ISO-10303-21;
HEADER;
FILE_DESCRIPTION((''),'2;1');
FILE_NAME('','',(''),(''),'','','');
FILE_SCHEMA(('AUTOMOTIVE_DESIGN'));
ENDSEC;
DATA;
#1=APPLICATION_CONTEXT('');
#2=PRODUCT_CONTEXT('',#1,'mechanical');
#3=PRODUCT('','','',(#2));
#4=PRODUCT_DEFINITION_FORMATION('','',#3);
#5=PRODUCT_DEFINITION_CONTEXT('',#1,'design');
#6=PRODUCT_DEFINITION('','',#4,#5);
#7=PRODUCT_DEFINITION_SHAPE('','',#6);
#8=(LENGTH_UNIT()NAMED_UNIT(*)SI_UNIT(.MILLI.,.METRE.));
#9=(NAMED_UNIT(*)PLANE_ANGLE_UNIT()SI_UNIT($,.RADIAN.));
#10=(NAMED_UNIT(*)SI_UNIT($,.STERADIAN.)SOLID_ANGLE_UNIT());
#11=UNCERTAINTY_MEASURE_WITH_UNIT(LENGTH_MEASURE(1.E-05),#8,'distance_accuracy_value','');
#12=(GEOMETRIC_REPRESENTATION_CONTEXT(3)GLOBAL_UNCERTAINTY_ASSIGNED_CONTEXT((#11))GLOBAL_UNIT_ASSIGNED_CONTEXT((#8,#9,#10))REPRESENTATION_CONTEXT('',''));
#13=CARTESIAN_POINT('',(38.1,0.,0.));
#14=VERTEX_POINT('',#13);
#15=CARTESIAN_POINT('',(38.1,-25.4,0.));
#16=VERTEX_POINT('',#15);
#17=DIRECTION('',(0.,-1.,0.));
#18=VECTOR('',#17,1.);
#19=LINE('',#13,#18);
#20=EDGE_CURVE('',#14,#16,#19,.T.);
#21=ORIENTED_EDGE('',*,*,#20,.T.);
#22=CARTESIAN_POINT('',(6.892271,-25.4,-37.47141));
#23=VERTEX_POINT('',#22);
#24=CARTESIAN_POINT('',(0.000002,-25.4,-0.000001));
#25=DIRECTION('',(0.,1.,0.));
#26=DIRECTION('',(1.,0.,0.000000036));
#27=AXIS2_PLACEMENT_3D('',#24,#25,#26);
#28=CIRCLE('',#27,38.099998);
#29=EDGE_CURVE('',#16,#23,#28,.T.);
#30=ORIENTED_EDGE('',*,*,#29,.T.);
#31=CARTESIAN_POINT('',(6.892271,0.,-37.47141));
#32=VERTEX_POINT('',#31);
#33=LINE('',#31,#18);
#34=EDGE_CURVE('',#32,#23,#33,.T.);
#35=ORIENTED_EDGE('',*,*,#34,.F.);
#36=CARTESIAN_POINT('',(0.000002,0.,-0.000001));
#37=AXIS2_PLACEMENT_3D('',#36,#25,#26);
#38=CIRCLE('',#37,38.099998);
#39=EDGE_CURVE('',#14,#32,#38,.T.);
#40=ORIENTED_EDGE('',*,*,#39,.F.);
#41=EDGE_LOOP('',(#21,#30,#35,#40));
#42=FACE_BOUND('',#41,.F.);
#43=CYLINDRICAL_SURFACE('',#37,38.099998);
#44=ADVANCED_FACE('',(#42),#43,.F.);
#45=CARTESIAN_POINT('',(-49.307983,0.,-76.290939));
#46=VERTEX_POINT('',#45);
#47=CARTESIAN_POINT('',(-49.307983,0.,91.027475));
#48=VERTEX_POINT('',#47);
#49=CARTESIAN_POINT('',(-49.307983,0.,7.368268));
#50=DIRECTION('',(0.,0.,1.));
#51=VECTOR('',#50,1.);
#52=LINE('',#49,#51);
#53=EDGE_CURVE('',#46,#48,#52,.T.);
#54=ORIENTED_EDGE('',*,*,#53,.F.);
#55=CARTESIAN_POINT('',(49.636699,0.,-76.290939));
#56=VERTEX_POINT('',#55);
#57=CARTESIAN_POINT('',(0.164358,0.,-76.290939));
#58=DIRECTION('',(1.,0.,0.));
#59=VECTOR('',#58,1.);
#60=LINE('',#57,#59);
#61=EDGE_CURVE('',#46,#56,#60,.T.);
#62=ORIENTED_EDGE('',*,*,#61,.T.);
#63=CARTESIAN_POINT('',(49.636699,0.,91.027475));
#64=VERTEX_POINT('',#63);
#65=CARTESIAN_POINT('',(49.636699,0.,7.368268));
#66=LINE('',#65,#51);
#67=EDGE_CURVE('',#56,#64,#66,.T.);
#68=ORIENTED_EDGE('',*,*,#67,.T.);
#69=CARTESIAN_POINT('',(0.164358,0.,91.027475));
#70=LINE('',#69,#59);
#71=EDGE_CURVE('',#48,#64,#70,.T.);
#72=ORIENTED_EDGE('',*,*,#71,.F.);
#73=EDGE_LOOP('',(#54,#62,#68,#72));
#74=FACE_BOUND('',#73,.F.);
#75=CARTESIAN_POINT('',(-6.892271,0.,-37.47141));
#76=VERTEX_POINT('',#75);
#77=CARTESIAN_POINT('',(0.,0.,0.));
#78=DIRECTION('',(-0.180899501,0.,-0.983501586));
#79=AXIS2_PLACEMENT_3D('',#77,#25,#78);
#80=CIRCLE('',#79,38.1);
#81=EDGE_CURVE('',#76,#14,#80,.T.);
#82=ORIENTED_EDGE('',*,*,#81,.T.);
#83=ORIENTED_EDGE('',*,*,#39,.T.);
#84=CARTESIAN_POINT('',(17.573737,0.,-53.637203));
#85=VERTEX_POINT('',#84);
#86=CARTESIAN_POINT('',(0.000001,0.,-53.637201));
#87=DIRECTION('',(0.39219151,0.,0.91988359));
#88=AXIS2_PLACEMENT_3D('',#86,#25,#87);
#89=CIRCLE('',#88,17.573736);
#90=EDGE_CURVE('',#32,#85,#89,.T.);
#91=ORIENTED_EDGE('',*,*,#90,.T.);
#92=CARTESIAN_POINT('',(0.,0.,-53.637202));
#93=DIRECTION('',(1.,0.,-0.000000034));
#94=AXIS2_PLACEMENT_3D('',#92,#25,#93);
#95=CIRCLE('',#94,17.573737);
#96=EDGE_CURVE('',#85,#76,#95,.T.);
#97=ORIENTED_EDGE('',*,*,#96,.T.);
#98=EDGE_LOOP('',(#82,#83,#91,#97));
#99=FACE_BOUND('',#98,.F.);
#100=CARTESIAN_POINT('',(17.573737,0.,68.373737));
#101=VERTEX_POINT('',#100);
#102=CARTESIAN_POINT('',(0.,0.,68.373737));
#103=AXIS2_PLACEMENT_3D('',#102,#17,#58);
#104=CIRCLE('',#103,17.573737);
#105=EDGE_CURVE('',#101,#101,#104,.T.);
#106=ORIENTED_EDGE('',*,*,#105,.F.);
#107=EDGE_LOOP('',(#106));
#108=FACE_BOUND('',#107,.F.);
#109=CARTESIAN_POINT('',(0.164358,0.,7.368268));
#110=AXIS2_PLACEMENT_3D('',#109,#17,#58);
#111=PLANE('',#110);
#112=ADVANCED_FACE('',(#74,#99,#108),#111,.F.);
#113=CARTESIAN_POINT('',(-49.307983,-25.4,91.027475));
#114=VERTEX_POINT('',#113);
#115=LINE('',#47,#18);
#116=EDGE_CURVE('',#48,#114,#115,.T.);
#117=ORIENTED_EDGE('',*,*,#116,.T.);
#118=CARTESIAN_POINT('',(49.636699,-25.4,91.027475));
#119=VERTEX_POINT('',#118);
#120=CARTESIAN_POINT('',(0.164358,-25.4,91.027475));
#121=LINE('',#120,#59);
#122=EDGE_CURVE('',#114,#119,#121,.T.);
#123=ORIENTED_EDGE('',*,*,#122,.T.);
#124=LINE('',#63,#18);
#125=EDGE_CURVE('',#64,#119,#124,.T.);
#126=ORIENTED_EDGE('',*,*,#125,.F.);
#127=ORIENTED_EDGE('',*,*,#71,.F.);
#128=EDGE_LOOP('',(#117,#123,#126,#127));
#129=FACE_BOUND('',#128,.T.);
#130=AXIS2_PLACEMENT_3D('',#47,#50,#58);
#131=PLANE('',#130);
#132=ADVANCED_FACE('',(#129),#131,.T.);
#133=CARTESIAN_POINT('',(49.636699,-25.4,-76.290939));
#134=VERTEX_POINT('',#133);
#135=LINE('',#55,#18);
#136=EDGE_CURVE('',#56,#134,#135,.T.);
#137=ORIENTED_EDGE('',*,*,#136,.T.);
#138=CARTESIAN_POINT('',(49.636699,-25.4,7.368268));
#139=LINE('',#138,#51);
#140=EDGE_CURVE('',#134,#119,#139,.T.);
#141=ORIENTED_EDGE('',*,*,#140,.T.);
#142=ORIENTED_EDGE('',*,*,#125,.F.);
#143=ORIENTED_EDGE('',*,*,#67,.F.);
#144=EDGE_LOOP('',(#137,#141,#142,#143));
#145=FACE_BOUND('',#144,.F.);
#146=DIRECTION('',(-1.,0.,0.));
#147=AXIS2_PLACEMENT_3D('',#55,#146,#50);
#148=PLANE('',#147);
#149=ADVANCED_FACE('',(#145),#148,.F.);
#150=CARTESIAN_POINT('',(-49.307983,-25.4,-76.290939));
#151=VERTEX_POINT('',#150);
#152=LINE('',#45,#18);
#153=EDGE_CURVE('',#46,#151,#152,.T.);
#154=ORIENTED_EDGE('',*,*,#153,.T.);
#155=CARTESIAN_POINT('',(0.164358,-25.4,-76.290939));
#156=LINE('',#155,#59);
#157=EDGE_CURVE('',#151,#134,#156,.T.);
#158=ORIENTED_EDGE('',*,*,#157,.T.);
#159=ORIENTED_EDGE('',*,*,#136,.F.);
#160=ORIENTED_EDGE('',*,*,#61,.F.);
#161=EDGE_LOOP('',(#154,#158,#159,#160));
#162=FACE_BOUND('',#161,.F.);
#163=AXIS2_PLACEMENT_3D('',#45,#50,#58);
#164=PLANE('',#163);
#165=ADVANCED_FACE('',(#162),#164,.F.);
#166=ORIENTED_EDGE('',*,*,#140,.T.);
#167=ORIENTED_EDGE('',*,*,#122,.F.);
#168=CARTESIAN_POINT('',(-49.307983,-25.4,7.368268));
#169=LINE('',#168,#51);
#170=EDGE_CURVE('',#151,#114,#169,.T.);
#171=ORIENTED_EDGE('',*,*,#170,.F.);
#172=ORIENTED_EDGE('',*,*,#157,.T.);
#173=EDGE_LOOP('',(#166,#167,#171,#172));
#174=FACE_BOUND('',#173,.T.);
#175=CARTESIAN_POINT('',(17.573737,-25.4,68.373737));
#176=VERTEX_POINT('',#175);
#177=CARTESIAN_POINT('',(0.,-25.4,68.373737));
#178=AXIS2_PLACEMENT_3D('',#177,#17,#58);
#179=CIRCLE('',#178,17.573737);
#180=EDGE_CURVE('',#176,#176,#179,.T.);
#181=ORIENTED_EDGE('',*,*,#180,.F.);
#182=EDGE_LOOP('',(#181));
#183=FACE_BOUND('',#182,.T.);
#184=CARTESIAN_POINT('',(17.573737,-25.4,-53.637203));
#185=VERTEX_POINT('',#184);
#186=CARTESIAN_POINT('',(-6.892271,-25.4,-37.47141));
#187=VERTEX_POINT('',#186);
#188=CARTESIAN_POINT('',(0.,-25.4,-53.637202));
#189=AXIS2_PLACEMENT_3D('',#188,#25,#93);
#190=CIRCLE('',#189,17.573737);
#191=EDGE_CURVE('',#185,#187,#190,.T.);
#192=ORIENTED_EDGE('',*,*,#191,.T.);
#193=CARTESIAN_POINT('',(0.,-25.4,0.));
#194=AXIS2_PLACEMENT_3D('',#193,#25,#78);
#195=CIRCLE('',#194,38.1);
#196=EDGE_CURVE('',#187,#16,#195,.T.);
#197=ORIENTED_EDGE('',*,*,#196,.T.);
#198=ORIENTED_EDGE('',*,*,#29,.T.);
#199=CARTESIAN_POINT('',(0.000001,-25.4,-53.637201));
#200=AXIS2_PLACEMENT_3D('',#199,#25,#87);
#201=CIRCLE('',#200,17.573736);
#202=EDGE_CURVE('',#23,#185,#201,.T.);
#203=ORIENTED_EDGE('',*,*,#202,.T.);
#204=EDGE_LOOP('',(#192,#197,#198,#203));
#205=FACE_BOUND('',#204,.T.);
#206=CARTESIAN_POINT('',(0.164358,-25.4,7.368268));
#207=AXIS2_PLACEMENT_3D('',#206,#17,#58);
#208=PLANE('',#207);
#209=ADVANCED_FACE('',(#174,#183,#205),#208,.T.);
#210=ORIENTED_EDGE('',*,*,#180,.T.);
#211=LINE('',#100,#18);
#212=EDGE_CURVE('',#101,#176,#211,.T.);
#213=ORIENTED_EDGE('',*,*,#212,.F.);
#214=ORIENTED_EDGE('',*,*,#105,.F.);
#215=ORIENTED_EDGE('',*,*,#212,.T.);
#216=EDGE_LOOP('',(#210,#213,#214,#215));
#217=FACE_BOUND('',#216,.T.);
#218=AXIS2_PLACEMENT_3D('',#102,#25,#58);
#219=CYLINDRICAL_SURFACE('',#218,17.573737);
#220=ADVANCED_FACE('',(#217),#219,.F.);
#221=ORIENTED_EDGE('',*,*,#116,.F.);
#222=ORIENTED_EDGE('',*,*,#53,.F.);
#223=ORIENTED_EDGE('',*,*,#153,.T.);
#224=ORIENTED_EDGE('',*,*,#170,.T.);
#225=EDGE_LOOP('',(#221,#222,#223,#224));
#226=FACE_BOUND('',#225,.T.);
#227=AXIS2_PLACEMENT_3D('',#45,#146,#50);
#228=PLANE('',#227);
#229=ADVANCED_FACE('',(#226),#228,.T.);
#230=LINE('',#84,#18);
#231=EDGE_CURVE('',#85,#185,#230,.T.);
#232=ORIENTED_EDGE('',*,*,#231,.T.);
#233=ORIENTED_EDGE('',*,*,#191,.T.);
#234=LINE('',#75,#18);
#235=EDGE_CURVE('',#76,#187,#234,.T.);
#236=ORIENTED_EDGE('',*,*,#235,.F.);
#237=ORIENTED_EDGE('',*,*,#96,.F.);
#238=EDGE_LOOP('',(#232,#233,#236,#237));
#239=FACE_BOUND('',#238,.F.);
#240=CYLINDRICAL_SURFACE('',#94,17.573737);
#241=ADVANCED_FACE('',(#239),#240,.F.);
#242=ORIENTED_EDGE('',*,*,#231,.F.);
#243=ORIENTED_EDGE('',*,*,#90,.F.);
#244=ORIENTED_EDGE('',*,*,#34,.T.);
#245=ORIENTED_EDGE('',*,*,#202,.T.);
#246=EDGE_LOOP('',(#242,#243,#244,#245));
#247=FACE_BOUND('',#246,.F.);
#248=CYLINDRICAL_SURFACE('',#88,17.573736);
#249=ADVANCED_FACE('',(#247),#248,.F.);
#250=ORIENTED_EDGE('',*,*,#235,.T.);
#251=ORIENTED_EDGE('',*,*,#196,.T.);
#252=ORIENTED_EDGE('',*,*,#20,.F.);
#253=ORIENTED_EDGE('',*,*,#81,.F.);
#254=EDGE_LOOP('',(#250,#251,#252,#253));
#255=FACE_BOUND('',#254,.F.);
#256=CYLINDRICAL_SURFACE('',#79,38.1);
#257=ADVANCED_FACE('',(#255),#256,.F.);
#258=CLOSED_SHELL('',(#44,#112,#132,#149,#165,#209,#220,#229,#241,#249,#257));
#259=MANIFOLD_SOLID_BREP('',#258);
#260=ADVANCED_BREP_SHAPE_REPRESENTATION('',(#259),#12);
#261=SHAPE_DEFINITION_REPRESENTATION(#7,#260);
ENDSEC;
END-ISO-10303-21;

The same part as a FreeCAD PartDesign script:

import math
import FreeCAD as App
import Part
import Sketcher
Q = App.Units.Quantity

doc = App.newDocument("Part")
body = doc.addObject("PartDesign::Body", "Body")

# Sketch on XZ plane
sketch1 = doc.addObject("Sketcher::SketchObject", "Sketch")
body.addObject(sketch1)
sketch1.AttachmentSupport = (doc.XZ_Plane, [""])
sketch1.MapMode = "FlatFace"
sketch1.addGeometry([
    Part.LineSegment(App.Vector(-49, 91, 0), App.Vector(-49, -76, 0)),  # 0
    Part.LineSegment(App.Vector(-49, -76, 0), App.Vector(50, -76, 0)),  # 1
    Part.LineSegment(App.Vector(50, -76, 0), App.Vector(50, 91, 0)),  # 2
    Part.LineSegment(App.Vector(50, 91, 0), App.Vector(-49, 91, 0)),  # 3
    Part.ArcOfCircle(Part.Circle(App.Vector(0, -54, 0), App.Vector(0, 0, 1), 18), math.radians(113), math.radians(360)),  # 4
    Part.ArcOfCircle(Part.Circle(App.Vector(0, 0, 0), App.Vector(0, 0, 1), 38), math.radians(0), math.radians(260)),  # 5
    Part.ArcOfCircle(Part.Circle(App.Vector(0, 0, 0), App.Vector(0, 0, 1), 38), math.radians(-80), math.radians(0)),  # 6
    Part.ArcOfCircle(Part.Circle(App.Vector(0, -54, 0), App.Vector(0, 0, 1), 18), math.radians(0), math.radians(67)),  # 7
    Part.Circle(App.Vector(0, 68, 0), App.Vector(0, 0, 1), 18),  # 8
], False)
sketch1.addConstraint([
    Sketcher.Constraint("Coincident", 0, 2, 1, 1),
    Sketcher.Constraint("Coincident", 1, 2, 2, 1),
    Sketcher.Constraint("Coincident", 2, 2, 3, 1),
    Sketcher.Constraint("Coincident", 3, 2, 0, 1),
    Sketcher.Constraint("Coincident", 4, 1, 5, 2),
    Sketcher.Constraint("Tangent", 5, 1, 6, 2),
    Sketcher.Constraint("Coincident", 6, 1, 7, 2),
    Sketcher.Constraint("Tangent", 7, 1, 4, 2),
    Sketcher.Constraint("Vertical", 0),
    Sketcher.Constraint("Horizontal", 1),
    Sketcher.Constraint("Vertical", 2),
    Sketcher.Constraint("Horizontal", 3),
    Sketcher.Constraint("Coincident", 5, 3, -1, 1),
    Sketcher.Constraint("Equal", 4, 7),
    Sketcher.Constraint("Equal", 7, 8),
    Sketcher.Constraint("Symmetric", 4, 1, 6, 1, -2),
    Sketcher.Constraint("PointOnObject", 8, 3, -2),
    Sketcher.Constraint("PointOnObject", 5, 1, -1),
    Sketcher.Constraint("Horizontal", 4, 3, 7, 1),
    Sketcher.Constraint("Radius", 5, Q("1.5 in")),
    Sketcher.Constraint("Diameter", 8, Q("35.147474 mm")),
    Sketcher.Constraint("DistanceX", 1, 1, 1, 2, Q("98.944682 mm")),
    Sketcher.Constraint("DistanceY", 7, 3, -1, 1, Q("53.637201 mm")),
    Sketcher.Constraint("DistanceX", -1, 1, 1, 2, Q("49.636699 mm")),
    Sketcher.Constraint("DistanceY", 0, 2, 0, 1, Q("167.318415 mm")),
    Sketcher.Constraint("DistanceY", 0, 2, -1, 1, Q("76.290939 mm")),
    Sketcher.Constraint("DistanceY", 6, 3, 8, 3, Q("68.373738 mm")),
])
pad1 = doc.addObject("PartDesign::Pad", "Pad")
body.addObject(pad1)
pad1.Profile = sketch1
pad1.Length = Q("1 in")

doc.recompute()
